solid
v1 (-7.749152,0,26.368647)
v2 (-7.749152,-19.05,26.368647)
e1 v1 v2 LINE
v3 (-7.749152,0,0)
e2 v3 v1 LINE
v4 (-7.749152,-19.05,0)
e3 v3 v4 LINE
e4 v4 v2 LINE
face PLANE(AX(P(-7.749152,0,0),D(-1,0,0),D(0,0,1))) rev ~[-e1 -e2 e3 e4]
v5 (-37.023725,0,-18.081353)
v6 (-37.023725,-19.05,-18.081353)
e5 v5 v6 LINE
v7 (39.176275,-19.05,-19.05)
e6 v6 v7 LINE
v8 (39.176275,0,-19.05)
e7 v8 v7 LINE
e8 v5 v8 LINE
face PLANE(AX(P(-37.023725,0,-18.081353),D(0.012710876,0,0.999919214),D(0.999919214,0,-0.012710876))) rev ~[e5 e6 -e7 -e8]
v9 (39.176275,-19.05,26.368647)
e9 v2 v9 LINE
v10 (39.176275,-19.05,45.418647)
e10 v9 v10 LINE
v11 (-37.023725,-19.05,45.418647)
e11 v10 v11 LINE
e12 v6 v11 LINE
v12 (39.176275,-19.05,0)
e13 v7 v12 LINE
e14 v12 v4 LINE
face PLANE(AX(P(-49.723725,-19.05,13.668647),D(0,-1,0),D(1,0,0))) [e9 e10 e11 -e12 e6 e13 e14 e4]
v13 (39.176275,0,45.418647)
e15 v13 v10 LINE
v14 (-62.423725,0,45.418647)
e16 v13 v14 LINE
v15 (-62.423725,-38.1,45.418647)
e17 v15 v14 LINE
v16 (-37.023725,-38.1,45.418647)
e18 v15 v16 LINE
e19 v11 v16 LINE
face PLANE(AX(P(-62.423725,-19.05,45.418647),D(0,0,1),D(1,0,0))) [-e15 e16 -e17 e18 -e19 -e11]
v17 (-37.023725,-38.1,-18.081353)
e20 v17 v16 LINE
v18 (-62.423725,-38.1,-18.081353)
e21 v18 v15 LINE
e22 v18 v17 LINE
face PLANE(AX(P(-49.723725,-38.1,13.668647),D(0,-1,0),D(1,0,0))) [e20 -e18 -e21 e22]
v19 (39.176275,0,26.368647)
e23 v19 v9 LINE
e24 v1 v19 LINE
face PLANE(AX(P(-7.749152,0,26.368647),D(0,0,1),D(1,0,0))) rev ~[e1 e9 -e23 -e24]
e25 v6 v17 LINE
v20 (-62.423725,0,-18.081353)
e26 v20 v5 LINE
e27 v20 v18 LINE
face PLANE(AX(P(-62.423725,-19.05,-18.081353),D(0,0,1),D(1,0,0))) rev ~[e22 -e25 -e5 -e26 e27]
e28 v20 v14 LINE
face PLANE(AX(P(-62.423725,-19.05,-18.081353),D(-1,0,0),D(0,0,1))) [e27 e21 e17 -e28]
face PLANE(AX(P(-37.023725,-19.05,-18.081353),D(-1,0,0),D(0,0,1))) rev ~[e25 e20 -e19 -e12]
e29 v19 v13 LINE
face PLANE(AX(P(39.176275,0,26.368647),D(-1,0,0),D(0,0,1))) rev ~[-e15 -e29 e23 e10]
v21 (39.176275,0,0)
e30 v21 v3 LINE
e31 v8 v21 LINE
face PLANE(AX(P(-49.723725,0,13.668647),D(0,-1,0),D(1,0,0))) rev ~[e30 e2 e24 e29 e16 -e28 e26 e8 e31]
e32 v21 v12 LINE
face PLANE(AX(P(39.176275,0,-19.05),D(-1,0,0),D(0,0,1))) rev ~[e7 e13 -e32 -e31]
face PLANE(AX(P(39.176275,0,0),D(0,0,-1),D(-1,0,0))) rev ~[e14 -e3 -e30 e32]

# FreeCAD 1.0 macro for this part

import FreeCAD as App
import Part
import Sketcher
from FreeCAD import Vector
Q = App.Units.Quantity


def add_polygon(sketch, points):
    """Adds a closed chain of lines whose ends are joined by coincident constraints."""
    first, n = sketch.GeometryCount, len(points)
    for a, b in zip(points, points[1:] + points[:1]):
        sketch.addGeometry(Part.LineSegment(App.Vector(*a, 0), App.Vector(*b, 0)), False)
    for i in range(n):
        sketch.addConstraint(Sketcher.Constraint("Coincident", first + i, 2, first + (i + 1) % n, 1))

doc = App.newDocument("Part")
body = doc.addObject("PartDesign::Body", "Body")

# Sketch on XZ plane
sketch1 = body.newObject("Sketcher::SketchObject", "Sketch")
sketch1.AttachmentSupport = (doc.getObject("XZ_Plane"), [""])
sketch1.MapMode = "FlatFace"
add_polygon(sketch1, [(-62.423725, 45.418647), (-62.423725, -18.081353), (-37.023725, -18.081353), (39.176275, -19.05), (39.176275, 0), (-7.749152, 0), (-7.749152, 26.368647), (39.176275, 26.368647), (39.176275, 45.418647)])  # lines 0-8
sketch1.addConstraint([
    Sketcher.Constraint("Vertical", 0),
    Sketcher.Constraint("Horizontal", 1),
    Sketcher.Constraint("Vertical", 3),
    Sketcher.Constraint("Horizontal", 4),
    Sketcher.Constraint("Vertical", 5),
    Sketcher.Constraint("Horizontal", 6),
    Sketcher.Constraint("Vertical", 7),
    Sketcher.Constraint("Horizontal", 8),
    Sketcher.Constraint("PointOnObject", 3, 2, -1),
    Sketcher.Constraint("Vertical", 3, 2, 6, 2),
    Sketcher.Constraint("Equal", 3, 7),
    Sketcher.Constraint("DistanceX", 1, 1, 1, 2, Q("1 in")),
    Sketcher.Constraint("DistanceX", 8, 2, 8, 1, Q("4 in")),
    Sketcher.Constraint("DistanceY", 0, 2, 0, 1, Q("2.5 in")),
    Sketcher.Constraint("DistanceY", 3, 1, 3, 2, Q("0.75 in")),
    Sketcher.Constraint("DistanceX", 4, 2, 4, 1, 46.925427),
    Sketcher.Constraint("DistanceY", 5, 1, 5, 2, 26.368647),
    Sketcher.Constraint("DistanceX", 4, 2, -1, 1, 7.749152),
])
pad1 = body.newObject("PartDesign::Pad", "Pad")
pad1.Profile = sketch1
pad1.Length = Q("0.75 in")

# Sketch on XZ plane
sketch2 = body.newObject("Sketcher::SketchObject", "Sketch001")
sketch2.AttachmentSupport = (doc.getObject("XZ_Plane"), [""])
sketch2.MapMode = "FlatFace"
sketch2.AttachmentOffset = App.Placement(Vector(0, 0, 0.75 * 25.4), App.Rotation())
add_polygon(sketch2, [(-62.423725, 45.418647), (-62.423725, -18.081353), (-37.023725, -18.081353), (-37.023725, 45.418647)])  # lines 0-3
sketch2.addConstraint([
    Sketcher.Constraint("Vertical", 0),
    Sketcher.Constraint("Horizontal", 1),
    Sketcher.Constraint("Vertical", 2),
    Sketcher.Constraint("Horizontal", 3),
    Sketcher.Constraint("DistanceX", 1, 1, 1, 2, Q("1 in")),
    Sketcher.Constraint("DistanceY", 0, 2, 0, 1, Q("2.5 in")),
    Sketcher.Constraint("DistanceX", 0, 2, -1, 1, 62.423725),
    Sketcher.Constraint("DistanceY", 0, 2, -1, 1, 18.081353),
])
pad2 = body.newObject("PartDesign::Pad", "Pad001")
pad2.Profile = sketch2
pad2.Length = Q("0.75 in")

doc.recompute()
